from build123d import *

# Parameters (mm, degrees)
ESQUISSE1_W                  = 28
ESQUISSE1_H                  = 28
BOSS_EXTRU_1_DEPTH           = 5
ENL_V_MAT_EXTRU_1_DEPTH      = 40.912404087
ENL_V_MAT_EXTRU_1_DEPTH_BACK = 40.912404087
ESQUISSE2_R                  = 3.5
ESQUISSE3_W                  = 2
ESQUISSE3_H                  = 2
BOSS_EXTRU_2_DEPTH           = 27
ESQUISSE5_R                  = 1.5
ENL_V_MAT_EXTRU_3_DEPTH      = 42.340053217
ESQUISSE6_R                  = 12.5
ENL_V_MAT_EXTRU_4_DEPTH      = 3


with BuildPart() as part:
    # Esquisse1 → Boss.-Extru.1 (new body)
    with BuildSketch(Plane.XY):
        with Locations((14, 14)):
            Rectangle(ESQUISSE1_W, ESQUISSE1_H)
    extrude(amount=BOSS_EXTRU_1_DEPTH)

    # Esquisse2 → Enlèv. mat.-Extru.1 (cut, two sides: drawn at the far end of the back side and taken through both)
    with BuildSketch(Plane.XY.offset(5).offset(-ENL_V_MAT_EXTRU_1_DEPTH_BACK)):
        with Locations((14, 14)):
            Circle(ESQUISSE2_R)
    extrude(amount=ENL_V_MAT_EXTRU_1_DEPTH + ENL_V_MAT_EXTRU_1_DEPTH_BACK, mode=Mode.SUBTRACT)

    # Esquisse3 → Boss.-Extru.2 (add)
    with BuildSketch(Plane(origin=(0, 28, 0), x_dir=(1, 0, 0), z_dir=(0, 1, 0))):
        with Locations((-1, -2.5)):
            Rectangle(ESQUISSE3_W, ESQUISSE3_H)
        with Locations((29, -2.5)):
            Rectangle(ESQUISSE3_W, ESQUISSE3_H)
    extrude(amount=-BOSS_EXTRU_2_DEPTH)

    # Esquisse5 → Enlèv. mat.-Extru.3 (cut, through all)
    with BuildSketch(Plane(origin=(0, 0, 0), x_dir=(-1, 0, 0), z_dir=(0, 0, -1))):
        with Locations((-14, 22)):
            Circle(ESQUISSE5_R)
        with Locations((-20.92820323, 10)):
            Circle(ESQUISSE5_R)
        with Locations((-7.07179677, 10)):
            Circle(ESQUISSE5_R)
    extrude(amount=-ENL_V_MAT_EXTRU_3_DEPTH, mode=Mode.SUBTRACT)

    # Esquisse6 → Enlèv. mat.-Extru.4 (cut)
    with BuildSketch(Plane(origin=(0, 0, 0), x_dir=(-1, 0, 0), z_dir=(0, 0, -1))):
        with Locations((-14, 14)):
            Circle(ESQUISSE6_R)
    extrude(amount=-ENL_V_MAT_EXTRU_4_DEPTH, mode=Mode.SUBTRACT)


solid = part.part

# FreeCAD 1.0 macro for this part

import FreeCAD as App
import Part
import Sketcher

doc = App.newDocument("Part")
body = doc.addObject("PartDesign::Body", "Body")

# Sketch on XY plane
sketch1 = body.newObject("Sketcher::SketchObject", "Sketch")
sketch1.AttachmentSupport = (doc.getObject("XY_Plane"), [""])
sketch1.MapMode = "FlatFace"
sketch1.addGeometry([
    Part.LineSegment(App.Vector(0, 28, 0), App.Vector(0, 0, 0)),
    Part.LineSegment(App.Vector(0, 0, 0), App.Vector(28, 0, 0)),
    Part.LineSegment(App.Vector(28, 0, 0), App.Vector(28, 28, 0)),
    Part.LineSegment(App.Vector(28, 28, 0), App.Vector(0, 28, 0)),
], False)
sketch1.addConstraint([
    Sketcher.Constraint("Coincident", 0, 2, 1, 1),
    Sketcher.Constraint("Coincident", 1, 2, 2, 1),
    Sketcher.Constraint("Coincident", 2, 2, 3, 1),
    Sketcher.Constraint("Coincident", 3, 2, 0, 1),
    Sketcher.Constraint("Vertical", 0),
    Sketcher.Constraint("Horizontal", 1),
    Sketcher.Constraint("Vertical", 2),
    Sketcher.Constraint("Horizontal", 3),
    Sketcher.Constraint("Coincident", 0, 2, -1, 1),
    Sketcher.Constraint("Equal", 3, 0),
    Sketcher.Constraint("DistanceX", 1, 1, 1, 2, 28.0),
])
pad1 = body.newObject("PartDesign::Pad", "Pad")
pad1.Profile = sketch1
pad1.Length = 5

# Sketch on XY plane
sketch2 = body.newObject("Sketcher::SketchObject", "Sketch001")
sketch2.AttachmentSupport = (doc.getObject("XY_Plane"), [""])
sketch2.MapMode = "FlatFace"
sketch2.AttachmentOffset = App.Placement(App.Vector(0, 0, 5), App.Rotation())
sketch2.addGeometry(Part.Circle(App.Vector(14, 14, 0), App.Vector(0, 0, 1), 3.5), False)
sketch2.addConstraint([
    Sketcher.Constraint("Diameter", 0, 7.0),
    Sketcher.Constraint("DistanceX", -1, 1, 0, 3, 14.0),
    Sketcher.Constraint("DistanceY", -1, 1, 0, 3, 14.0),
])
pocket1 = body.newObject("PartDesign::Pocket", "Pocket")
pocket1.Profile = sketch2
pocket1.Type = "ThroughAll"
pocket1.Midplane = True

# Sketch on XZ plane
sketch3 = body.newObject("Sketcher::SketchObject", "Sketch002")
sketch3.AttachmentSupport = (doc.getObject("XZ_Plane"), [""])
sketch3.MapMode = "FlatFace"
sketch3.AttachmentOffset = App.Placement(App.Vector(0, 0, -28), App.Rotation())
sketch3.addGeometry([
    Part.LineSegment(App.Vector(-2, 1.5, 0), App.Vector(-2, 3.5, 0)),  # 0
    Part.LineSegment(App.Vector(-2, 3.5, 0), App.Vector(0, 3.5, 0)),  # 1
    Part.LineSegment(App.Vector(0, 3.5, 0), App.Vector(0, 1.5, 0)),  # 2
    Part.LineSegment(App.Vector(0, 1.5, 0), App.Vector(-2, 1.5, 0)),  # 3
    Part.LineSegment(App.Vector(28, 1.5, 0), App.Vector(28, 3.5, 0)),  # 4
    Part.LineSegment(App.Vector(28, 3.5, 0), App.Vector(30, 3.5, 0)),  # 5
    Part.LineSegment(App.Vector(30, 3.5, 0), App.Vector(30, 1.5, 0)),  # 6
    Part.LineSegment(App.Vector(30, 1.5, 0), App.Vector(28, 1.5, 0)),  # 7
], False)
sketch3.addConstraint([
    Sketcher.Constraint("Coincident", 0, 2, 1, 1),
    Sketcher.Constraint("Coincident", 1, 2, 2, 1),
    Sketcher.Constraint("Coincident", 2, 2, 3, 1),
    Sketcher.Constraint("Coincident", 3, 2, 0, 1),
    Sketcher.Constraint("Coincident", 4, 2, 5, 1),
    Sketcher.Constraint("Coincident", 5, 2, 6, 1),
    Sketcher.Constraint("Coincident", 6, 2, 7, 1),
    Sketcher.Constraint("Coincident", 7, 2, 4, 1),
    Sketcher.Constraint("Vertical", 0),
    Sketcher.Constraint("Horizontal", 1),
    Sketcher.Constraint("Vertical", 2),
    Sketcher.Constraint("Horizontal", 3),
    Sketcher.Constraint("Vertical", 4),
    Sketcher.Constraint("Horizontal", 5),
    Sketcher.Constraint("Vertical", 6),
    Sketcher.Constraint("Horizontal", 7),
    Sketcher.Constraint("PointOnObject", 1, 2, -2),
    Sketcher.Constraint("Horizontal", 1, 2, 4, 2),
    Sketcher.Constraint("Horizontal", 3, 2, 6, 2),
    Sketcher.Constraint("Equal", 3, 5),
    Sketcher.Constraint("Equal", 7, 0),
    Sketcher.Constraint("DistanceX", 1, 1, 1, 2, 2.0),
    Sketcher.Constraint("DistanceX", -1, 1, 4, 2, 28.0),
    Sketcher.Constraint("DistanceY", -1, 1, 0, 2, 3.5),
])
pad2 = body.newObject("PartDesign::Pad", "Pad001")
pad2.Profile = sketch3
pad2.Length = 27

# Sketch on XY plane
sketch4 = body.newObject("Sketcher::SketchObject", "Sketch003")
sketch4.AttachmentSupport = (doc.getObject("XY_Plane"), [""])
sketch4.MapMode = "FlatFace"
sketch4.addGeometry([
    Part.Circle(App.Vector(14, 22, 0), App.Vector(0, 0, 1), 1.5),
    Part.Circle(App.Vector(20.928203, 10, 0), App.Vector(0, 0, 1), 1.5),
    Part.Circle(App.Vector(7.071797, 10, 0), App.Vector(0, 0, 1), 1.5),
], False)
sketch4.addConstraint([
    Sketcher.Constraint("Equal", 0, 1),
    Sketcher.Constraint("Equal", 1, 2),
    Sketcher.Constraint("Horizontal", 1, 3, 2, 3),
    Sketcher.Constraint("Diameter", 0, 3.0),
    Sketcher.Constraint("DistanceX", -1, 1, 0, 3, 14.0),
    Sketcher.Constraint("DistanceY", -1, 1, 0, 3, 22.0),
    Sketcher.Constraint("DistanceY", -1, 1, 1, 3, 10.0),
    Sketcher.Constraint("DistanceX", -1, 1, 1, 3, 20.928203),
    Sketcher.Constraint("DistanceX", -1, 1, 2, 3, 7.071797),
])
pocket2 = body.newObject("PartDesign::Pocket", "Pocket001")
pocket2.Profile = sketch4
pocket2.Type = "ThroughAll"
pocket2.Reversed = True

# Sketch on XY plane
sketch5 = body.newObject("Sketcher::SketchObject", "Sketch004")
sketch5.AttachmentSupport = (doc.getObject("XY_Plane"), [""])
sketch5.MapMode = "FlatFace"
sketch5.addGeometry(Part.Circle(App.Vector(14, 14, 0), App.Vector(0, 0, 1), 12.5), False)
sketch5.addConstraint([
    Sketcher.Constraint("Diameter", 0, 25.0),
    Sketcher.Constraint("DistanceX", -1, 1, 0, 3, 14.0),
    Sketcher.Constraint("DistanceY", -1, 1, 0, 3, 14.0),
])
pocket3 = body.newObject("PartDesign::Pocket", "Pocket002")
pocket3.Profile = sketch5
pocket3.Length = 3
pocket3.Reversed = True

doc.recompute()
